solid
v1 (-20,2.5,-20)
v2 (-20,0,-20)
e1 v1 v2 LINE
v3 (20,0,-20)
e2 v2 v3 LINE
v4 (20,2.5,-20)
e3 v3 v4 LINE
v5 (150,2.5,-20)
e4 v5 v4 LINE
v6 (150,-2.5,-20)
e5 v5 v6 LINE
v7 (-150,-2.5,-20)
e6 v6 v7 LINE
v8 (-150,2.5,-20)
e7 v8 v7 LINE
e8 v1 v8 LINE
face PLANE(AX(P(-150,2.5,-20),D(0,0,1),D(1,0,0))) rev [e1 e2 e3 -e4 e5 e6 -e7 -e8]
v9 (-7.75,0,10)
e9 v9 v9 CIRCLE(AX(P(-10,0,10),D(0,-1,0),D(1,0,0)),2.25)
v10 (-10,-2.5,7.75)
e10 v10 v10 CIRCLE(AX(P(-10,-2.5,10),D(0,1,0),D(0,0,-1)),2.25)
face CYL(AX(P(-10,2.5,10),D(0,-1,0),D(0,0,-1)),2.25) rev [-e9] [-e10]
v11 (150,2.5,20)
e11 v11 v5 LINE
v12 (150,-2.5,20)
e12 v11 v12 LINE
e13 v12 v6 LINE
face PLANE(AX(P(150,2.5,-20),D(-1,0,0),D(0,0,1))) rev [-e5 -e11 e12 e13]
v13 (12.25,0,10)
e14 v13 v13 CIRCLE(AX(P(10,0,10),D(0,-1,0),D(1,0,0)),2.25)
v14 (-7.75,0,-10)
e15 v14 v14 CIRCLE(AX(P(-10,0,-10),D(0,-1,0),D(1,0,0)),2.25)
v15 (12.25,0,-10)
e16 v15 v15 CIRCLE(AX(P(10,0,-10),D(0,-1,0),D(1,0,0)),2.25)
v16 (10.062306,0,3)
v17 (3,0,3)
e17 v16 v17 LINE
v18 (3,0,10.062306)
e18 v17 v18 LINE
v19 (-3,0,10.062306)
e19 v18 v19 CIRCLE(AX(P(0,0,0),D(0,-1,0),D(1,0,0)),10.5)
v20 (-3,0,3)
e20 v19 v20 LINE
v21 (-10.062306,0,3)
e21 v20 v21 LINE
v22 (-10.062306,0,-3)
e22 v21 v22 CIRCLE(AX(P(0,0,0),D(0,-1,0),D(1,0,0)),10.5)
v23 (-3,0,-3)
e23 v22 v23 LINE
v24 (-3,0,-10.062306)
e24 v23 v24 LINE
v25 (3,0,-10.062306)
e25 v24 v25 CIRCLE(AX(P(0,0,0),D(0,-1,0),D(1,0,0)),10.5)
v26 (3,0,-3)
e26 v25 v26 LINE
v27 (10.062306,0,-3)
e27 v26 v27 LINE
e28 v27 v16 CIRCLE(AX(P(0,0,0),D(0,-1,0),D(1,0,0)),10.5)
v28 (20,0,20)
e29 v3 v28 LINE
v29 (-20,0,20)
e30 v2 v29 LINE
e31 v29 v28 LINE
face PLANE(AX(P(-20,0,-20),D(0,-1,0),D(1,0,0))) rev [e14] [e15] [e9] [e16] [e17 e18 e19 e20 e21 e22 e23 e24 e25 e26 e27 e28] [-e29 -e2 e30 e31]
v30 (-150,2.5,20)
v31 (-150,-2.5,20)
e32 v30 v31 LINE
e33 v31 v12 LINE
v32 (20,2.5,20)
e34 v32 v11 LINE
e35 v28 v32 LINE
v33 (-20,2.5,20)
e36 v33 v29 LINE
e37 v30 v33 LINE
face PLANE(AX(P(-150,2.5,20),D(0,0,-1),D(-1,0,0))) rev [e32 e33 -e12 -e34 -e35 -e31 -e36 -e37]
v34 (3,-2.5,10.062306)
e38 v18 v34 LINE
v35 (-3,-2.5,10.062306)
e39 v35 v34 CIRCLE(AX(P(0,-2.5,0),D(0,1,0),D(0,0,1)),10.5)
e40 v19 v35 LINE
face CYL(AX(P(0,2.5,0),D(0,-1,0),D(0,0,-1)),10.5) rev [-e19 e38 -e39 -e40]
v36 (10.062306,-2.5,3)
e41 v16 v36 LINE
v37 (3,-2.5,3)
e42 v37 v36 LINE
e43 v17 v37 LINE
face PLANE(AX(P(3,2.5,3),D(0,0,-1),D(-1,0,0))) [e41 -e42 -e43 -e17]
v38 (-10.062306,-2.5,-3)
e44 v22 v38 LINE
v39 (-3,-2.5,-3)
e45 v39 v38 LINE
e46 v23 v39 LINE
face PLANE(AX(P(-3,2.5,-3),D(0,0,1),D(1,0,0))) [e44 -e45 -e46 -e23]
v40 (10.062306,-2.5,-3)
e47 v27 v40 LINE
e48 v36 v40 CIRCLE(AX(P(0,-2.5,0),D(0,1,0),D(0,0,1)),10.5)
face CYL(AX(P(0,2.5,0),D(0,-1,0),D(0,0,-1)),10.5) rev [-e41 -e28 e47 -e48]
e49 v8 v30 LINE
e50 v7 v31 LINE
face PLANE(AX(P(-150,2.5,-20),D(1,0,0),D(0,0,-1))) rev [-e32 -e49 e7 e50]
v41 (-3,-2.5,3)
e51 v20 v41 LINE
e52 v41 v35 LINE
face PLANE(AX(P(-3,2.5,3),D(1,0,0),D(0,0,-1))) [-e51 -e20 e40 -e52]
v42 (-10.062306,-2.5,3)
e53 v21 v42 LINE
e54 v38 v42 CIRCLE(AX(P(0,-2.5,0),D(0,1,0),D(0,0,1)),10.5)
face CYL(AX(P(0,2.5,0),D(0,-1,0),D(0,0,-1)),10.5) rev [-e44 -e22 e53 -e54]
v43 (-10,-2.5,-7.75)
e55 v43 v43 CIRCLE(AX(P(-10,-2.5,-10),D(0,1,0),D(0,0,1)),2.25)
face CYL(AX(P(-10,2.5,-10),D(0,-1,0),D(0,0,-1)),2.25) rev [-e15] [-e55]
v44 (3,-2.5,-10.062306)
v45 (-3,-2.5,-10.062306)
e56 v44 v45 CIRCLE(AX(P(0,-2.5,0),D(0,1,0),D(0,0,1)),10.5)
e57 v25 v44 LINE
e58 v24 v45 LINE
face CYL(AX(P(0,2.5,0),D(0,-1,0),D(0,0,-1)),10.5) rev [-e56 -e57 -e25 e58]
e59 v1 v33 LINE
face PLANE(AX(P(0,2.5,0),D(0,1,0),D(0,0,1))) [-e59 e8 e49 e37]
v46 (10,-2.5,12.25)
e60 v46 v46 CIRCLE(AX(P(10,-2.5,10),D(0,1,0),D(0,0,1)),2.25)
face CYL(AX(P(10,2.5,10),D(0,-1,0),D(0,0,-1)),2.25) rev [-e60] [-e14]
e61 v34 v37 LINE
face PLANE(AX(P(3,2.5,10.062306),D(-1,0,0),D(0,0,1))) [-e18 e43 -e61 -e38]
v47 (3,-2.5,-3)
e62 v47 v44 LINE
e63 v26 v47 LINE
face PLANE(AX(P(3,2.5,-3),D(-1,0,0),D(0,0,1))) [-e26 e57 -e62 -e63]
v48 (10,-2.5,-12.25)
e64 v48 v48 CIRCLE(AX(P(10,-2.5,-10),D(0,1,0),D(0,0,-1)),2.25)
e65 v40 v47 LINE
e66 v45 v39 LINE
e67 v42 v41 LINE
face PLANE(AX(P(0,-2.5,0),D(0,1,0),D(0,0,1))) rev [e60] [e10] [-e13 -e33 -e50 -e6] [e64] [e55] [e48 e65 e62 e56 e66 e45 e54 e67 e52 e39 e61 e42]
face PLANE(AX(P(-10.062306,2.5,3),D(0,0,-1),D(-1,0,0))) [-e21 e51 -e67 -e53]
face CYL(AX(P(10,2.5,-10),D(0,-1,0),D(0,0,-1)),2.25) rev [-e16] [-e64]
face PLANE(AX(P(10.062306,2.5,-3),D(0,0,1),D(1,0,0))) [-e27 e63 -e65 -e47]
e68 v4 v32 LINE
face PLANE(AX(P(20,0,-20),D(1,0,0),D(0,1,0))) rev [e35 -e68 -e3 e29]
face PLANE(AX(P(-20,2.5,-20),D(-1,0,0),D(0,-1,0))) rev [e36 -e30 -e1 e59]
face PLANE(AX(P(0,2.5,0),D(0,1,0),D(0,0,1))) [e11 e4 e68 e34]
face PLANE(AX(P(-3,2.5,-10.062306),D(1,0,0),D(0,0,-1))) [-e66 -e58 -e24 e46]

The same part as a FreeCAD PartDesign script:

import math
import FreeCAD as App
import Part
import Sketcher

V = App.Vector


def add_polygon(sketch, points):
    """Adds a closed chain of lines whose ends are joined by coincident constraints."""
    first, n = sketch.GeometryCount, len(points)
    for a, b in zip(points, points[1:] + points[:1]):
        sketch.addGeometry(Part.LineSegment(App.Vector(*a, 0), App.Vector(*b, 0)), False)
    for i in range(n):
        sketch.addConstraint(Sketcher.Constraint("Coincident", first + i, 2, first + (i + 1) % n, 1))

doc = App.newDocument("Part")
body = doc.addObject("PartDesign::Body", "Body")

sketch1 = body.newObject("Sketcher::SketchObject", "Sketch")
sketch1.AttachmentSupport = (doc.getObject("XZ_Plane"), [""])
sketch1.MapMode = "FlatFace"
add_polygon(sketch1, [(-150, -20), (-150, 20), (150, 20), (150, -20)])
sketch1.addGeometry(Part.Circle(V(-10, 10, 0), V(0, 0, 1), 2.25), False)
sketch1.addGeometry(Part.LineSegment(V(-3, 10.062306, 0), V(-3, 3, 0)), False)
sketch1.addGeometry(Part.LineSegment(V(-3, 3, 0), V(-10.062306, 3, 0)), False)
sketch1.addGeometry(Part.ArcOfCircle(Part.Circle(V(0, 0, 0), V(0, 0, 1), 10.5), math.radians(163.39845), math.radians(196.60155)), False)
sketch1.addGeometry(Part.LineSegment(V(-10.062306, -3, 0), V(-3, -3, 0)), False)
sketch1.addGeometry(Part.LineSegment(V(-3, -3, 0), V(-3, -10.062306, 0)), False)
sketch1.addGeometry(Part.ArcOfCircle(Part.Circle(V(0, 0, 0), V(0, 0, 1), 10.5), math.radians(-106.60155), math.radians(-73.39845)), False)
sketch1.addGeometry(Part.LineSegment(V(3, -10.062306, 0), V(3, -3, 0)), False)
sketch1.addGeometry(Part.LineSegment(V(3, -3, 0), V(10.062306, -3, 0)), False)
sketch1.addGeometry(Part.ArcOfCircle(Part.Circle(V(0, 0, 0), V(0, 0, 1), 10.5), math.radians(-16.60155), math.radians(16.60155)), False)
sketch1.addGeometry(Part.LineSegment(V(10.062306, 3, 0), V(3, 3, 0)), False)
sketch1.addGeometry(Part.LineSegment(V(3, 3, 0), V(3, 10.062306, 0)), False)
sketch1.addGeometry(Part.ArcOfCircle(Part.Circle(V(0, 0, 0), V(0, 0, 1), 10.5), math.radians(73.39845), math.radians(106.60155)), False)
sketch1.addGeometry(Part.Circle(V(10, 10, 0), V(0, 0, 1), 2.25), False)
sketch1.addGeometry(Part.Circle(V(-10, -10, 0), V(0, 0, 1), 2.25), False)
sketch1.addGeometry(Part.Circle(V(10, -10, 0), V(0, 0, 1), 2.25), False)
sketch1.addConstraint([
    Sketcher.Constraint("Coincident", 5, 2, 6, 1),
    Sketcher.Constraint("Coincident", 6, 2, 7, 1),
    Sketcher.Constraint("Coincident", 7, 2, 8, 1),
    Sketcher.Constraint("Coincident", 8, 2, 9, 1),
    Sketcher.Constraint("Coincident", 9, 2, 10, 1),
    Sketcher.Constraint("Coincident", 10, 2, 11, 1),
    Sketcher.Constraint("Coincident", 11, 2, 12, 1),
    Sketcher.Constraint("Coincident", 12, 2, 13, 1),
    Sketcher.Constraint("Coincident", 13, 2, 14, 1),
    Sketcher.Constraint("Coincident", 14, 2, 15, 1),
    Sketcher.Constraint("Coincident", 15, 2, 16, 1),
    Sketcher.Constraint("Coincident", 16, 2, 5, 1),
    Sketcher.Constraint("Vertical", 0),
    Sketcher.Constraint("Horizontal", 1),
    Sketcher.Constraint("Vertical", 2),
    Sketcher.Constraint("Horizontal", 3),
    Sketcher.Constraint("Vertical", 5),
    Sketcher.Constraint("Horizontal", 6),
    Sketcher.Constraint("Horizontal", 8),
    Sketcher.Constraint("Vertical", 9),
    Sketcher.Constraint("Vertical", 11),
    Sketcher.Constraint("Horizontal", 12),
    Sketcher.Constraint("Horizontal", 14),
    Sketcher.Constraint("Vertical", 15),
    Sketcher.Constraint("Coincident", 7, 3, -1, 1),
    Sketcher.Constraint("Coincident", 10, 3, -1, 1),
    Sketcher.Constraint("Coincident", 13, 3, -1, 1),
    Sketcher.Constraint("Coincident", 16, 3, -1, 1),
    Sketcher.Constraint("Equal", 7, 10),
    Sketcher.Constraint("Equal", 10, 13),
    Sketcher.Constraint("Equal", 13, 16),
    Sketcher.Constraint("Equal", 4, 17),
    Sketcher.Constraint("Equal", 17, 18),
    Sketcher.Constraint("Equal", 18, 19),
    Sketcher.Constraint("Symmetric", 17, 3, 18, 3, -1, 1),
    Sketcher.Constraint("Symmetric", 4, 3, 19, 3, -1, 1),
    Sketcher.Constraint("Symmetric", 0, 2, 2, 2, -1, 1),
    Sketcher.Constraint("Symmetric", 5, 2, 11, 2, -1, 1),
    Sketcher.Constraint("Symmetric", 8, 2, 14, 2, -1, 1),
    Sketcher.Constraint("Symmetric", 4, 3, 17, 3, -2),
    Sketcher.Constraint("Symmetric", 8, 2, 11, 2, -2),
    Sketcher.Constraint("Equal", 14, 5),
    Sketcher.Constraint("Diameter", 4, 4.5),
    Sketcher.Constraint("Radius", 7, 10.5),
    Sketcher.Constraint("DistanceX", 1, 1, 1, 2, 300.0),
    Sketcher.Constraint("DistanceY", 0, 1, 0, 2, 40.0),
    Sketcher.Constraint("DistanceX", 4, 3, -1, 1, 10.0),
    Sketcher.Constraint("DistanceY", -1, 1, 4, 3, 10.0),
    Sketcher.Constraint("DistanceX", 5, 2, -1, 1, 3.0),
])
pad1 = body.newObject("PartDesign::Pad", "Pad")
pad1.Profile = sketch1
pad1.Length = 5
pad1.Midplane = True

sketch2 = body.newObject("Sketcher::SketchObject", "Sketch001")
sketch2.AttachmentSupport = (doc.getObject("XY_Plane"), [""])
sketch2.MapMode = "FlatFace"
sketch2.AttachmentOffset = App.Placement(V(0, 0, 20), App.Rotation())
add_polygon(sketch2, [(-20, 2.5), (-20, 0), (20, 0), (20, 2.5)])
sketch2.addConstraint([
    Sketcher.Constraint("Vertical", 0),
    Sketcher.Constraint("Horizontal", 1),
    Sketcher.Constraint("Vertical", 2),
    Sketcher.Constraint("Horizontal", 3),
    Sketcher.Constraint("Symmetric", 0, 2, 1, 2, -1, 1),
    Sketcher.Constraint("DistanceX", 1, 1, 1, 2, 40.0),
    Sketcher.Constraint("DistanceY", 0, 2, 0, 1, 2.5),
])
pocket1 = body.newObject("PartDesign::Pocket", "Pocket")
pocket1.Profile = sketch2
pocket1.Type = "ThroughAll"

doc.recompute()
